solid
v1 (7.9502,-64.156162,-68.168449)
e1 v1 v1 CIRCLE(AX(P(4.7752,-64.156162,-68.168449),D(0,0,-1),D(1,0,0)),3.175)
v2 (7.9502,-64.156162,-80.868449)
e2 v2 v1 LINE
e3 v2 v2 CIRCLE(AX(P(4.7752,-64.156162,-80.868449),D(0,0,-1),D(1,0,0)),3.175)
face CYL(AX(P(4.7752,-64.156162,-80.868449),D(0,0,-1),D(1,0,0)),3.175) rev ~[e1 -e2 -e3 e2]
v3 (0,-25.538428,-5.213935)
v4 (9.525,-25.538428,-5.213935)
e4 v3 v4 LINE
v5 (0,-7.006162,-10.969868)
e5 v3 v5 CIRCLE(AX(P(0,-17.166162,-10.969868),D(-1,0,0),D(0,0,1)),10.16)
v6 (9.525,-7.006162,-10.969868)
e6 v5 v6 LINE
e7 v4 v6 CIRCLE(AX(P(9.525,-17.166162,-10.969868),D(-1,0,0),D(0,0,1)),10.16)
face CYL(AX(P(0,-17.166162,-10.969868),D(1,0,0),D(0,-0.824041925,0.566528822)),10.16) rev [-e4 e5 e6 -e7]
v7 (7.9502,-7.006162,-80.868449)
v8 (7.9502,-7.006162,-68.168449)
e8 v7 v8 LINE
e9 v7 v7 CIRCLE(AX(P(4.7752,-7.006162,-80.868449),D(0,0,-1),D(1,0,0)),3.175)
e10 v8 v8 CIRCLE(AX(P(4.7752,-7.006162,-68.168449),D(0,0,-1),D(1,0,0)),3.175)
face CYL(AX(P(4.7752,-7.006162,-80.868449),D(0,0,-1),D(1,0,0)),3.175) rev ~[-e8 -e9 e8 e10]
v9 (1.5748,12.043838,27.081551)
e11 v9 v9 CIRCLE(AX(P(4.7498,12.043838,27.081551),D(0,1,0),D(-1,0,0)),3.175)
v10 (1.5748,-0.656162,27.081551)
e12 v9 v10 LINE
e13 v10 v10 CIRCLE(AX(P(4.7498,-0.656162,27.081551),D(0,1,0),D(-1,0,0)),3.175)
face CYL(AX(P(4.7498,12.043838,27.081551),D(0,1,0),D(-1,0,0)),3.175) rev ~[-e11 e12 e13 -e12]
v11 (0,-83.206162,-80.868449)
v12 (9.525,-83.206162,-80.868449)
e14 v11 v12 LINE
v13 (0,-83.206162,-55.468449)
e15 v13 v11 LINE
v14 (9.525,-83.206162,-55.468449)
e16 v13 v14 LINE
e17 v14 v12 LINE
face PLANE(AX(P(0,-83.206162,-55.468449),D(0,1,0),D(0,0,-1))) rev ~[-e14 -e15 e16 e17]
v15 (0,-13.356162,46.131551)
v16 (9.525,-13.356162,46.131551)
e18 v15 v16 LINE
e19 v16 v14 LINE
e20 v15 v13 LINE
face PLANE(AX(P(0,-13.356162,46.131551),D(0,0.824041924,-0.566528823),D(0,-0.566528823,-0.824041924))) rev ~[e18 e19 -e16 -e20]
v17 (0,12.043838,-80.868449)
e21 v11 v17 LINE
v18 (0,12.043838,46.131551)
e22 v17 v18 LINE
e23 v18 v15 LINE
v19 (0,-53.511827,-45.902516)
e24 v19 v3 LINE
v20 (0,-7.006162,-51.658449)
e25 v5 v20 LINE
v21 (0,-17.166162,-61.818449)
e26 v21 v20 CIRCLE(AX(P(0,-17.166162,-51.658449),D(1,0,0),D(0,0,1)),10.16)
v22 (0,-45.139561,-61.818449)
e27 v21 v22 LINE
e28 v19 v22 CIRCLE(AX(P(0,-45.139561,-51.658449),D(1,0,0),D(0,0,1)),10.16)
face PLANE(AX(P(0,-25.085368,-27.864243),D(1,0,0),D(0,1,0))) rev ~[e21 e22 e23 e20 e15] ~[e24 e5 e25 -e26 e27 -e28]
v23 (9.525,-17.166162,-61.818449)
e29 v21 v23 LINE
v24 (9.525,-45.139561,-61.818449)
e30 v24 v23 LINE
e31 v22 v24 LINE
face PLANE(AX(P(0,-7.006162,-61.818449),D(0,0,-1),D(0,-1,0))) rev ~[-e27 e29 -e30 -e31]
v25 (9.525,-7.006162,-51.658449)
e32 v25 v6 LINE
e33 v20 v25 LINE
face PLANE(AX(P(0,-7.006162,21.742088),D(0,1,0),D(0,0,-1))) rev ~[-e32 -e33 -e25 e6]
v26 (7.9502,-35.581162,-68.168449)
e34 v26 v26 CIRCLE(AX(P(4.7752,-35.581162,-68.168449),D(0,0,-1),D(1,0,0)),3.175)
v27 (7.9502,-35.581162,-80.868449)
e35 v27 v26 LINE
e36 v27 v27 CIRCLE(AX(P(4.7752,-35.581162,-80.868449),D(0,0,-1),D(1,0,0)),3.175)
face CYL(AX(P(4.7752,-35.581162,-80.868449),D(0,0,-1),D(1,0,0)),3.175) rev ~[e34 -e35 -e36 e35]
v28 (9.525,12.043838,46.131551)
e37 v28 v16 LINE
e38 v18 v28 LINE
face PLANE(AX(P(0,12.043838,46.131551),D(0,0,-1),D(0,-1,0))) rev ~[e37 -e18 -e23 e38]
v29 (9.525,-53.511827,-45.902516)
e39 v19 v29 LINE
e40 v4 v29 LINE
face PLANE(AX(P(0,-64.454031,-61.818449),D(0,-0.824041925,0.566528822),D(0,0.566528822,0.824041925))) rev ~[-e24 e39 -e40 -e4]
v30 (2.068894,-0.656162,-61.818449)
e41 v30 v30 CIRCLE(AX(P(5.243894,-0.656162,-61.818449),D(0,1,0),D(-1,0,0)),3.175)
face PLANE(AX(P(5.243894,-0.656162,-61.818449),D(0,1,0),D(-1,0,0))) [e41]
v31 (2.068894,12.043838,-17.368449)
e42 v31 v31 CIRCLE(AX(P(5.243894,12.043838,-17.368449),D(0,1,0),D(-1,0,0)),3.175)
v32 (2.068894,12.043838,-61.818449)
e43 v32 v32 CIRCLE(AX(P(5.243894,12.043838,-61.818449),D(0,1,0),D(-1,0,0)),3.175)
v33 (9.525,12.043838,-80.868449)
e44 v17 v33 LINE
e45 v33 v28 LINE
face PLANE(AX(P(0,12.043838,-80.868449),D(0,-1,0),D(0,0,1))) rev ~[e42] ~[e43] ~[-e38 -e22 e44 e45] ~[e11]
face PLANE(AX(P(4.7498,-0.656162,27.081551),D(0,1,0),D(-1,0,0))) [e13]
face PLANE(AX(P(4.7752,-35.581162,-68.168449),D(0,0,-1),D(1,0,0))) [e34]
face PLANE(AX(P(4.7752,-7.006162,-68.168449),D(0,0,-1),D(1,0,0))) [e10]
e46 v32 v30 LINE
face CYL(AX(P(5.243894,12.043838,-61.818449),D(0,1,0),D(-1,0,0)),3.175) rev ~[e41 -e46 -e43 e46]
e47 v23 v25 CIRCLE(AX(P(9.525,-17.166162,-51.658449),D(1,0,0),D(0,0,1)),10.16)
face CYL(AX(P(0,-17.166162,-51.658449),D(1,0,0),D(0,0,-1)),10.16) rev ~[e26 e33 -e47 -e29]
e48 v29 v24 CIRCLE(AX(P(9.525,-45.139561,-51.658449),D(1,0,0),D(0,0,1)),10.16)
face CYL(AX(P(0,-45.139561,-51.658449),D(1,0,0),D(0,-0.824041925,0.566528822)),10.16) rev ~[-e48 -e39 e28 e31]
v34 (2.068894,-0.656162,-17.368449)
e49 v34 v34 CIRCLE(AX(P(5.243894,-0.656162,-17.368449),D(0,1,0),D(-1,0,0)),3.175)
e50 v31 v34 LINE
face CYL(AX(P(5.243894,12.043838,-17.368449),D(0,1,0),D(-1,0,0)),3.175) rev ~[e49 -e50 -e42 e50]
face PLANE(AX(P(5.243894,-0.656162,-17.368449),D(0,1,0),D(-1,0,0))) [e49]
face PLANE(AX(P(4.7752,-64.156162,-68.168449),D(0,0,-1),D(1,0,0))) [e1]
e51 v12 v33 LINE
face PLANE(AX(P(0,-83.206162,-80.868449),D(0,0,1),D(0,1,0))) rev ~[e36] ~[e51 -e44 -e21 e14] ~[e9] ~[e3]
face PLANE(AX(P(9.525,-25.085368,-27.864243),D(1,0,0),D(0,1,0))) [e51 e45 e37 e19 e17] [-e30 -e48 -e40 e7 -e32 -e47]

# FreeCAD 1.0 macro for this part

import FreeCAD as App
import Part
import Sketcher

V = App.Vector
Q = App.Units.Quantity


def edges_at(feature, points):
    """Names of the edges that pass closest to the given points."""
    edges = feature.Shape.Edges
    near = lambda p: min(range(len(edges)), key=lambda i: edges[i].distToShape(Part.Vertex(*p))[0])
    return sorted({f"Edge{near(p) + 1}" for p in points})


def add_polygon(sketch, points):
    """Adds a closed chain of lines whose ends are joined by coincident constraints."""
    first, n = sketch.GeometryCount, len(points)
    for a, b in zip(points, points[1:] + points[:1]):
        sketch.addGeometry(Part.LineSegment(App.Vector(*a, 0), App.Vector(*b, 0)), False)
    for i in range(n):
        sketch.addConstraint(Sketcher.Constraint("Coincident", first + i, 2, first + (i + 1) % n, 1))

doc = App.newDocument("Part")
body = doc.addObject("PartDesign::Body", "Body")

sketch1 = body.newObject("Sketcher::SketchObject", "Sketch")
sketch1.AttachmentSupport = (doc.getObject("YZ_Plane"), [""])
sketch1.MapMode = "FlatFace"
add_polygon(sketch1, [(12, -81), (12, 46), (-13, 46), (-83, -55), (-83, -81)])
sketch1.addConstraint(Sketcher.Constraint("Vertical", 0))
sketch1.addConstraint(Sketcher.Constraint("Horizontal", 1))
sketch1.addConstraint(Sketcher.Constraint("Vertical", 3))
sketch1.addConstraint(Sketcher.Constraint("Horizontal", 4))
sketch1.addConstraint(Sketcher.Constraint("Equal", 1, 3))
sketch1.addConstraint(Sketcher.Constraint("DistanceX", 1, 2, 1, 1, Q("1 in")))
sketch1.addConstraint(Sketcher.Constraint("DistanceY", 0, 1, 0, 2, Q("5 in")))
sketch1.addConstraint(Sketcher.Constraint("DistanceX", 4, 1, 4, 2, Q("3.75 in")))
sketch1.addConstraint(Sketcher.Constraint("DistanceY", -1, 1, 0, 2, Q("46.131551 mm")))
sketch1.addConstraint(Sketcher.Constraint("DistanceX", -1, 1, 0, 2, Q("12.043838 mm")))
pad1 = body.newObject("PartDesign::Pad", "Pad")
pad1.Profile = sketch1
pad1.Length = Q("0.375 in")

sketch2 = body.newObject("Sketcher::SketchObject", "Sketch001")
sketch2.AttachmentSupport = (doc.getObject("YZ_Plane"), [""])
sketch2.MapMode = "FlatFace"
add_polygon(sketch2, [(-7, 22), (-7, -62), (-64, -62)])
sketch2.addConstraint(Sketcher.Constraint("Vertical", 0))
sketch2.addConstraint(Sketcher.Constraint("Horizontal", 1))
sketch2.addConstraint(Sketcher.Constraint("DistanceX", 1, 2, 1, 1, Q("57.447869 mm")))
sketch2.addConstraint(Sketcher.Constraint("Distance", 2, Q("101.403259 mm")))
sketch2.addConstraint(Sketcher.Constraint("DistanceX", 0, 2, -1, 1, Q("7.006162 mm")))
sketch2.addConstraint(Sketcher.Constraint("DistanceY", 0, 2, -1, 1, Q("61.818449 mm")))
pocket1 = body.newObject("PartDesign::Pocket", "Pocket")
pocket1.Profile = sketch2
pocket1.Type = "ThroughAll"
pocket1.Reversed = True
doc.recompute()

fillet = body.newObject("PartDesign::Fillet", "Fillet")
fillet.Base = (pocket1, edges_at(pocket1, [(4.763, -7.006, -61.818)]))
fillet.Radius = Q("0.4 in")
doc.recompute()

fillet2 = body.newObject("PartDesign::Fillet", "Fillet001")
fillet2.Base = (fillet, edges_at(fillet, [(4.763, -7.006, 21.742)]))
fillet2.Radius = Q("0.4 in")
doc.recompute()

fillet3 = body.newObject("PartDesign::Fillet", "Fillet002")
fillet3.Base = (fillet2, edges_at(fillet2, [(4.763, -64.454, -61.818)]))
fillet3.Radius = Q("0.4 in")

sketch3 = body.newObject("Sketcher::SketchObject", "Sketch002")
sketch3.AttachmentSupport = (doc.getObject("XZ_Plane"), [""])
sketch3.MapMode = "FlatFace"
sketch3.AttachmentOffset = App.Placement(V(0, 0, -12.043838), App.Rotation())
sketch3.addGeometry(Part.Circle(V(5.2, -17.4, 0), V(0, 0, 1), 3.2), False)
sketch3.addGeometry(Part.Circle(V(5.2, -61.8, 0), V(0, 0, 1), 3.2), False)
sketch3.addGeometry(Part.Circle(V(4.7, 27.1, 0), V(0, 0, 1), 3.2), False)
sketch3.addConstraint(Sketcher.Constraint("Equal", 0, 1))
sketch3.addConstraint(Sketcher.Constraint("Equal", 1, 2))
sketch3.addConstraint(Sketcher.Constraint("Vertical", 0, 3, 1, 3))
sketch3.addConstraint(Sketcher.Constraint("Diameter", 0, Q("0.25 in")))
sketch3.addConstraint(Sketcher.Constraint("DistanceY", 1, 3, 2, 3, Q("3.5 in")))
sketch3.addConstraint(Sketcher.Constraint("DistanceY", 1, 3, 0, 3, Q("1.75 in")))
sketch3.addConstraint(Sketcher.Constraint("DistanceX", -1, 1, 2, 3, Q("0.187 in")))
sketch3.addConstraint(Sketcher.Constraint("DistanceY", 0, 3, -1, 1, Q("17.368449 mm")))
sketch3.addConstraint(Sketcher.Constraint("DistanceX", -1, 1, 0, 3, Q("5.243894 mm")))
pocket2 = body.newObject("PartDesign::Pocket", "Pocket001")
pocket2.Profile = sketch3
pocket2.Length = Q("0.5 in")
pocket2.Reversed = True

sketch4 = body.newObject("Sketcher::SketchObject", "Sketch003")
sketch4.AttachmentSupport = (doc.getObject("XY_Plane"), [""])
sketch4.MapMode = "FlatFace"
sketch4.AttachmentOffset = App.Placement(V(0, 0, -80.868449), App.Rotation())
sketch4.addGeometry(Part.Circle(V(4.8, -7, 0), V(0, 0, 1), 3.2), False)
sketch4.addGeometry(Part.Circle(V(4.8, -35.6, 0), V(0, 0, 1), 3.2), False)
sketch4.addGeometry(Part.Circle(V(4.8, -64.2, 0), V(0, 0, 1), 3.2), False)
sketch4.addConstraint(Sketcher.Constraint("Equal", 0, 1))
sketch4.addConstraint(Sketcher.Constraint("Equal", 1, 2))
sketch4.addConstraint(Sketcher.Constraint("Vertical", 0, 3, 1, 3))
sketch4.addConstraint(Sketcher.Constraint("Vertical", 1, 3, 2, 3))
sketch4.addConstraint(Sketcher.Constraint("Diameter", 0, Q("0.25 in")))
sketch4.addConstraint(Sketcher.Constraint("DistanceY", 2, 3, 0, 3, Q("2.25 in")))
sketch4.addConstraint(Sketcher.Constraint("DistanceX", -1, 1, 0, 3, Q("0.188 in")))
sketch4.addConstraint(Sketcher.Constraint("DistanceY", 1, 3, 0, 3, Q("1.125 in")))
sketch4.addConstraint(Sketcher.Constraint("DistanceY", 0, 3, -1, 1, Q("7.006162 mm")))
pocket3 = body.newObject("PartDesign::Pocket", "Pocket002")
pocket3.Profile = sketch4
pocket3.Length = Q("0.5 in")
pocket3.Reversed = True

doc.recompute()
